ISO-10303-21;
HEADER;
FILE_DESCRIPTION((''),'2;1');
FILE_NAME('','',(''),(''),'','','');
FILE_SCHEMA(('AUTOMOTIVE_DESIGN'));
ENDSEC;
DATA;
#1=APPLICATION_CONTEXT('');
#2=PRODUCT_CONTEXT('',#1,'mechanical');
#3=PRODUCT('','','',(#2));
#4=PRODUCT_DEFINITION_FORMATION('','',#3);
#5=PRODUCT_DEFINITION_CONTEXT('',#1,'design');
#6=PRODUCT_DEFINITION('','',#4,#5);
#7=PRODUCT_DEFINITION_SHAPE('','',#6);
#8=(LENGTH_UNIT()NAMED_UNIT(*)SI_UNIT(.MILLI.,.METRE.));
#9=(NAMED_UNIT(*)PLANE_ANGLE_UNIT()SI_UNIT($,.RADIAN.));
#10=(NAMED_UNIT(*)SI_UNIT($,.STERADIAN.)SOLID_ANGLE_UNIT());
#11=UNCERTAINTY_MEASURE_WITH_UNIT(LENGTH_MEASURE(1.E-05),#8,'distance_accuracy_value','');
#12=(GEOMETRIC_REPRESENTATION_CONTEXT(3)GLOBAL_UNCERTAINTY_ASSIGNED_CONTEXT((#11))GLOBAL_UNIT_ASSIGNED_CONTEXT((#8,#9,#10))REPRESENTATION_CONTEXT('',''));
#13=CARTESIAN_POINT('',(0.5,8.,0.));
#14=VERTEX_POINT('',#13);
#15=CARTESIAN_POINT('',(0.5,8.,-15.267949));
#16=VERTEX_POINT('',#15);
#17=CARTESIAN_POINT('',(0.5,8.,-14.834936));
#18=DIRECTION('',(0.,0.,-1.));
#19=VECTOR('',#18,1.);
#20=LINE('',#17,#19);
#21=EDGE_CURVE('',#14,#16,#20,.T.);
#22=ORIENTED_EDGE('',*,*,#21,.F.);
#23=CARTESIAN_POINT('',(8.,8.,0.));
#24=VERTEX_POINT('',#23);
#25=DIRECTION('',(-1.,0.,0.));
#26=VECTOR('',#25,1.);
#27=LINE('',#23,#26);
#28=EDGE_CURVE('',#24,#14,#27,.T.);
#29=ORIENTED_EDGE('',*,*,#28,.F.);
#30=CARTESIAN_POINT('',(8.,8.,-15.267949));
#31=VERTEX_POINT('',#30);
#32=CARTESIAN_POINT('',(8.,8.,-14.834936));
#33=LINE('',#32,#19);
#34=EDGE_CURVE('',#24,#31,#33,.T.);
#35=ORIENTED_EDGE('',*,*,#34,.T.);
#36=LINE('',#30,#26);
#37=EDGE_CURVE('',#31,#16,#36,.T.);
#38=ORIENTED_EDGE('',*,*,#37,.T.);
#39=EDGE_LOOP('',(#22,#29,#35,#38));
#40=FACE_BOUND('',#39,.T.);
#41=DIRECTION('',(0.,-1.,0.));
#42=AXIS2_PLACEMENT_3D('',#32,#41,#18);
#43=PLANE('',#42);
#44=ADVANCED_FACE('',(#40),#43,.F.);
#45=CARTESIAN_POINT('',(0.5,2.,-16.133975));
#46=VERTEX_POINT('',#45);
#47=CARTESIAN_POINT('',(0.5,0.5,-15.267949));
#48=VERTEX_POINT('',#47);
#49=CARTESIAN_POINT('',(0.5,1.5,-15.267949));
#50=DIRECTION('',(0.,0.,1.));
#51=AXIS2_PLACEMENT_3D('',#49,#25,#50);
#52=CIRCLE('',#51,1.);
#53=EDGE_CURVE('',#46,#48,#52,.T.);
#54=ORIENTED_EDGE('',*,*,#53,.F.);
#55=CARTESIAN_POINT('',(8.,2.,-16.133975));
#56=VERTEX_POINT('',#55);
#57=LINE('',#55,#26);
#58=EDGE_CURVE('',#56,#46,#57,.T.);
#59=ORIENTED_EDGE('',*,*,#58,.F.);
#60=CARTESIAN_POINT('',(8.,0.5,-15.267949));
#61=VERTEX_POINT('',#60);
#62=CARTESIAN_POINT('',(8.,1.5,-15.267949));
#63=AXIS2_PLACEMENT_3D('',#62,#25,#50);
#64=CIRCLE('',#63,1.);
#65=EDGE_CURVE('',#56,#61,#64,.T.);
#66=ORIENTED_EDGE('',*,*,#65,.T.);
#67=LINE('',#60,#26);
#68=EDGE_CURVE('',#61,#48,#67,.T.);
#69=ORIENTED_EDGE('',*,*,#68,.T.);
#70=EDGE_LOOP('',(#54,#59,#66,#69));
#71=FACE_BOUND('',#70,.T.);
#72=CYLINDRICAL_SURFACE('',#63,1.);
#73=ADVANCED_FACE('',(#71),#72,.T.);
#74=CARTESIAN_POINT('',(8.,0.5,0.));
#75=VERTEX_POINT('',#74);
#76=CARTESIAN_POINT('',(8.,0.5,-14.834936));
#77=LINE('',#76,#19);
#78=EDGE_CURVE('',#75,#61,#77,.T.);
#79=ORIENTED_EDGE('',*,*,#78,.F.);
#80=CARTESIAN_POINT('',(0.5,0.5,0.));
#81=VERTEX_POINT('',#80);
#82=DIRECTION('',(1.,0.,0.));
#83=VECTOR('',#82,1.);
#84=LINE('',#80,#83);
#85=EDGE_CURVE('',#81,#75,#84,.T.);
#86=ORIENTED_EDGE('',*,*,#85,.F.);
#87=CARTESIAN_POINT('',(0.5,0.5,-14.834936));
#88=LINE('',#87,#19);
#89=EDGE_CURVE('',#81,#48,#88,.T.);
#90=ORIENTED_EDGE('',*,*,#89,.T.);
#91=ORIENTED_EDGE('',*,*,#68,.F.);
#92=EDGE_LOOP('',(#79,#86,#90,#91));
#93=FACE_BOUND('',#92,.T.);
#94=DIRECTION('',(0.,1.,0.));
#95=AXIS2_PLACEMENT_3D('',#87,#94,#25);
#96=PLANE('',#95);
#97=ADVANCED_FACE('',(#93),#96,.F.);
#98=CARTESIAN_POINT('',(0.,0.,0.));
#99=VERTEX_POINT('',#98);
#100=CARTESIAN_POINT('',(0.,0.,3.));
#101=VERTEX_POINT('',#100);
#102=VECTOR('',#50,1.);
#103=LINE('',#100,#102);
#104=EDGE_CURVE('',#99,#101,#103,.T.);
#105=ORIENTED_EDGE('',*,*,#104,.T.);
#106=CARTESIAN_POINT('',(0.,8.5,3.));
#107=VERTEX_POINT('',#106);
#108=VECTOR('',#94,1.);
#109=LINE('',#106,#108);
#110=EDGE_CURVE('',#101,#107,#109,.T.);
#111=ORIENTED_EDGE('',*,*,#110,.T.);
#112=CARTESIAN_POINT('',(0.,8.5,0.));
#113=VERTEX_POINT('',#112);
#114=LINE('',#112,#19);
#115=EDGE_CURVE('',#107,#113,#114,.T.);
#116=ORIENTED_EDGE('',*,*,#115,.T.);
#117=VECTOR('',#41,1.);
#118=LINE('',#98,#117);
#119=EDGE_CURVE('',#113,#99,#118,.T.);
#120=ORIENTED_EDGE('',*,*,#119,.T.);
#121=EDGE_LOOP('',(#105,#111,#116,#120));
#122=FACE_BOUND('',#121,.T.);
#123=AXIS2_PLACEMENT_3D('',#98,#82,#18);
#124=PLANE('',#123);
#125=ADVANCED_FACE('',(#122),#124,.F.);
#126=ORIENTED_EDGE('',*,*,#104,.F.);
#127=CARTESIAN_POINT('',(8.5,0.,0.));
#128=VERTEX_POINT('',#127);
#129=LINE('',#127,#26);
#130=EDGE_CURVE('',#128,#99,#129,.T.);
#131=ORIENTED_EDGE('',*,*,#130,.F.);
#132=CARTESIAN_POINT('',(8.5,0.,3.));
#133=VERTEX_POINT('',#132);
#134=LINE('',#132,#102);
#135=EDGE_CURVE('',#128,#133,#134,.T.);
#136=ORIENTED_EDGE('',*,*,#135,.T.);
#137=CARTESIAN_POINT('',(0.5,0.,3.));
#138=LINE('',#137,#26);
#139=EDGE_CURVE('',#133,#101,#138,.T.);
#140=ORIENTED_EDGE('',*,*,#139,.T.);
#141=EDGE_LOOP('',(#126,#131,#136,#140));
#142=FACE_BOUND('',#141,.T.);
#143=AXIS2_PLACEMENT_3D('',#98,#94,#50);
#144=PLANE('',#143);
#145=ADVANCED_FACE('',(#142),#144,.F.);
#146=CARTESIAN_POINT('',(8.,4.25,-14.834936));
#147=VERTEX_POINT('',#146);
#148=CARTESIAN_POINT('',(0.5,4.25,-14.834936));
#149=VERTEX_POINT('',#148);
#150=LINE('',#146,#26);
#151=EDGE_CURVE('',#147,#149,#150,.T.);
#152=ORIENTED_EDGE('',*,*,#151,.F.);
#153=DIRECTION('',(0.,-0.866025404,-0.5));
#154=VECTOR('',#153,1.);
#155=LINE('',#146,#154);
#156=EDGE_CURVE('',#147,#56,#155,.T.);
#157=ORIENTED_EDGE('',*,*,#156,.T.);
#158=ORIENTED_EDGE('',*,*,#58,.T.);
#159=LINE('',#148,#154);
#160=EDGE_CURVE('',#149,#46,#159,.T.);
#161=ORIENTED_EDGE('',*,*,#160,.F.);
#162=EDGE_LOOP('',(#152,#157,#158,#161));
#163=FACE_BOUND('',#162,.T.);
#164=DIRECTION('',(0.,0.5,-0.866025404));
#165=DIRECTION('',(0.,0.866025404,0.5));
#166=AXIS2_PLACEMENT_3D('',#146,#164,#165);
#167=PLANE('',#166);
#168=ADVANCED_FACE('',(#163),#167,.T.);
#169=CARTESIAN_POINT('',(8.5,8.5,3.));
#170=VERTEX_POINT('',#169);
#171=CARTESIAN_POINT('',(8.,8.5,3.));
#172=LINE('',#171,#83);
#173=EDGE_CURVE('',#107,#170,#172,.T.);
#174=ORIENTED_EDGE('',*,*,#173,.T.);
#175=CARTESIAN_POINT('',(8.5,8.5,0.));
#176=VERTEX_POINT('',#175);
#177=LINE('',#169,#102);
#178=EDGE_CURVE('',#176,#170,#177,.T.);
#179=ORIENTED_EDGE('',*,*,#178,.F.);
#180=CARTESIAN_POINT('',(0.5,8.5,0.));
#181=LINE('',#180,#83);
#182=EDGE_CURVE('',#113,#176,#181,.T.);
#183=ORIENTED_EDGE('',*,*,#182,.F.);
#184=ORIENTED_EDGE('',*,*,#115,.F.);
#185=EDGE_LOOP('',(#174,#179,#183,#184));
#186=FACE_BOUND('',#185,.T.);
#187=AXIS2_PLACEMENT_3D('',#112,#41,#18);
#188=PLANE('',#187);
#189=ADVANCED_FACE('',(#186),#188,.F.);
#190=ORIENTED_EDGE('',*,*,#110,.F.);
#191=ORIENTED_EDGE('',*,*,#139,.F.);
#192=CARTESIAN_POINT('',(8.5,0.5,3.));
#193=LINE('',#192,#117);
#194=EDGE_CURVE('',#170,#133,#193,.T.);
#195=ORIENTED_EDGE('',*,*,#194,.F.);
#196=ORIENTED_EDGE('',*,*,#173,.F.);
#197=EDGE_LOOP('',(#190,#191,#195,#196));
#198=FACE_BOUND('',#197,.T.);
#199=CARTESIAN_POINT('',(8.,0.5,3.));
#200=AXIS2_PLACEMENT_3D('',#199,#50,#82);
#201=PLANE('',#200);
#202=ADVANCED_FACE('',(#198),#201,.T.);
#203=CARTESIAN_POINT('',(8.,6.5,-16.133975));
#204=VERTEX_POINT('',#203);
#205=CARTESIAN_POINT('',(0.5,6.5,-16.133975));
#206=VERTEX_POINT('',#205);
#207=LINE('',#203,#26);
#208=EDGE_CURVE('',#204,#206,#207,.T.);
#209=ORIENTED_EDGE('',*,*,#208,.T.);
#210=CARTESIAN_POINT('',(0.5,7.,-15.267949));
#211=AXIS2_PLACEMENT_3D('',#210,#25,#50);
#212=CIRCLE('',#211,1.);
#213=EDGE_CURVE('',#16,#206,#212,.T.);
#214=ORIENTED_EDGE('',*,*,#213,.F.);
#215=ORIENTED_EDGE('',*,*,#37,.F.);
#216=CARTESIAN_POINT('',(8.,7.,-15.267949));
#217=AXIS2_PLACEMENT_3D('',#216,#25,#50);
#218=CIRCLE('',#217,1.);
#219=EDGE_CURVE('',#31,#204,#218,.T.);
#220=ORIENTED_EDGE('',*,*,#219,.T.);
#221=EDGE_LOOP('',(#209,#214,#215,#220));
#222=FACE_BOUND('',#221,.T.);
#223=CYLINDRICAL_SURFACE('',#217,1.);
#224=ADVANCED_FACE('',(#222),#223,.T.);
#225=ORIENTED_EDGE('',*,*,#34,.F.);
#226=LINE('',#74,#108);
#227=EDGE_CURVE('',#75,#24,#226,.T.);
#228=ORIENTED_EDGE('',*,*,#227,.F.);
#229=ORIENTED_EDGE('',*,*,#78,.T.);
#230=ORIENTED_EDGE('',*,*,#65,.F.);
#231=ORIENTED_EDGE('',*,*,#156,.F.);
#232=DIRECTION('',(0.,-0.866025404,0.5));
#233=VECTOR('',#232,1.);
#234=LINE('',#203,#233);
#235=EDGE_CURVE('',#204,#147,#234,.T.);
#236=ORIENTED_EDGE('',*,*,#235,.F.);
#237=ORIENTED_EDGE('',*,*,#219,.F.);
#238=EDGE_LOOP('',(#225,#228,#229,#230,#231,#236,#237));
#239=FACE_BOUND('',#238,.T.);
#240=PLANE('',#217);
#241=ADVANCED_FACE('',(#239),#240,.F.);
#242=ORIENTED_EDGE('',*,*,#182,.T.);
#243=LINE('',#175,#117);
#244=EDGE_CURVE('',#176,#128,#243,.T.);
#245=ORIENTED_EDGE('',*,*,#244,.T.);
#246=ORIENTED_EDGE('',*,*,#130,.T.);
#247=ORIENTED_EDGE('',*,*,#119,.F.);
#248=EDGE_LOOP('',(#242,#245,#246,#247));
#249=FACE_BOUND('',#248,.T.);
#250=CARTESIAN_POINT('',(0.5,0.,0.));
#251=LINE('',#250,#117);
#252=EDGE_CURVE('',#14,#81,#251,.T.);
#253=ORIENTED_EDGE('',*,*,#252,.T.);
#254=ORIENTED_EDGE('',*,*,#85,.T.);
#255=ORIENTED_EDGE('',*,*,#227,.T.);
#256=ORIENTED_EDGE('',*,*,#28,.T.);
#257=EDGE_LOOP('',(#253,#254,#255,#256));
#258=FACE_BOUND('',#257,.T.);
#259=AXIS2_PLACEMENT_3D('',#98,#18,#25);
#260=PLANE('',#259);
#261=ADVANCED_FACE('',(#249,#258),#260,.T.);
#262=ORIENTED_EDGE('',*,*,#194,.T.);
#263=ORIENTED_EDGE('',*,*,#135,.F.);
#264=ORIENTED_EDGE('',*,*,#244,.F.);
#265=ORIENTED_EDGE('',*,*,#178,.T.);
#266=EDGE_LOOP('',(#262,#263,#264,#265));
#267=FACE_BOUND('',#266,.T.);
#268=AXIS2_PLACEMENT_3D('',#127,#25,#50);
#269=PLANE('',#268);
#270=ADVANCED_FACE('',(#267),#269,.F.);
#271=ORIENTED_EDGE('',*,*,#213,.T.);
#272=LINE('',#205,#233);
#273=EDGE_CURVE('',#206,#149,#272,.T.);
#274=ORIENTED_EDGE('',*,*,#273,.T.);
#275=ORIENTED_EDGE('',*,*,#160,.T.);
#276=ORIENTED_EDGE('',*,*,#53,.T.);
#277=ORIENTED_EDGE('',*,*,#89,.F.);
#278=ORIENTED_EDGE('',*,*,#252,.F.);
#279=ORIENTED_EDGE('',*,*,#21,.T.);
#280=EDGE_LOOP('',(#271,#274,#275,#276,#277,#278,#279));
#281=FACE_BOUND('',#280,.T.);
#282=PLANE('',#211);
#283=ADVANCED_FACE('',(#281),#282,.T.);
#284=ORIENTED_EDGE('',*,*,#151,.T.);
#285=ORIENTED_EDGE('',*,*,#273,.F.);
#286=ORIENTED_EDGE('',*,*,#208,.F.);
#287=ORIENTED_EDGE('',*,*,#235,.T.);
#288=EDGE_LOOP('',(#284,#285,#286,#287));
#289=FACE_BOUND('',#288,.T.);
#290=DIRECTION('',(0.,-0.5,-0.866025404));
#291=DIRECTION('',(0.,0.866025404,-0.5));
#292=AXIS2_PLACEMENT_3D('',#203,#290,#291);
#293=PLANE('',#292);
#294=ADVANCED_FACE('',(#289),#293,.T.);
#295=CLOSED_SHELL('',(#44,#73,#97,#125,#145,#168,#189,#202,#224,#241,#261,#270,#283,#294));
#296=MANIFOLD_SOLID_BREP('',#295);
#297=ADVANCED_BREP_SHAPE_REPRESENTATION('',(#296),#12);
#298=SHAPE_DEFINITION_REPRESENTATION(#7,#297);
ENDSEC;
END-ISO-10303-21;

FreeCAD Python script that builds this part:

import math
import FreeCAD as App
import Part
import Sketcher

V = App.Vector
Q = App.Units.Quantity


def add_polygon(sketch, points):
    """Adds a closed chain of lines whose ends are joined by coincident constraints."""
    first, n = sketch.GeometryCount, len(points)
    for a, b in zip(points, points[1:] + points[:1]):
        sketch.addGeometry(Part.LineSegment(App.Vector(*a, 0), App.Vector(*b, 0)), False)
    for i in range(n):
        sketch.addConstraint(Sketcher.Constraint("Coincident", first + i, 2, first + (i + 1) % n, 1))

doc = App.newDocument("Part")
params = doc.addObject("Spreadsheet::Sheet", "Params")
for row, (alias, value) in enumerate([
    ("sketch1_radius", "1 mm"),
    ("sketch1_width", "7.5 mm"),
    ("pad1_length", "7.5 mm"),
    ("sketch2_width", "7.5 mm"),
    ("pad2_length", "0.5 mm"),
    ("sketch3_width", "8 mm"),
    ("pad3_length", "0.5 mm"),
    ("sketch4_width", "8 mm"),
    ("pad4_length", "0.5 mm"),
    ("sketch5_width", "8 mm"),
    ("sketch5_width2", "7.5 mm"),
    ("sketch5_height", "0.5 mm"),
    ("pocket1_length", "0.433013 mm"),
    ("sketch6_width", "8 mm"),
    ("sketch6_width2", "7.5 mm"),
    ("sketch6_height", "0.5 mm"),
    ("pocket2_length", "14.834936 mm"),
    ("sketch7_height", "3 mm"),
    ("sketch7_width", "8.5 mm"),
    ("pad5_length", "0.5 mm"),
], start=1):
    params.set(f"A{row}", alias)
    params.set(f"B{row}", "=" + value)
    params.setAlias(f"B{row}", alias)

body = doc.addObject("PartDesign::Body", "Body")

# Sketch on YZ plane
sketch1 = doc.addObject("Sketcher::SketchObject", "Sketch")
body.addObject(sketch1)
sketch1.AttachmentSupport = (doc.YZ_Plane, [""])
sketch1.MapMode = "FlatFace"
sketch1.AttachmentOffset = App.Placement(V(0, 0, 0.5), App.Rotation())
sketch1.addGeometry([
    Part.LineSegment(V(0.5, 3, 0), V(8, 3, 0)),  # 0
    Part.LineSegment(V(8, 3, 0), V(8, -15.3, 0)),  # 1
    Part.ArcOfCircle(Part.Circle(V(7, -15.3, 0), V(0, 0, 1), 1), math.radians(-120), math.radians(0)),  # 2
    Part.LineSegment(V(6.5, -16.1, 0), V(4.2, -14.8, 0)),  # 3
    Part.LineSegment(V(4.2, -14.8, 0), V(2, -16.1, 0)),  # 4
    Part.ArcOfCircle(Part.Circle(V(1.5, -15.3, 0), V(0, 0, 1), 1), math.radians(180), math.radians(300)),  # 5
    Part.LineSegment(V(0.5, -15.3, 0), V(0.5, 3, 0)),  # 6
], False)
sketch1.addConstraint([
    Sketcher.Constraint("Coincident", 0, 2, 1, 1),
    Sketcher.Constraint("Tangent", 1, 2, 2, 2),
    Sketcher.Constraint("Tangent", 2, 1, 3, 1),
    Sketcher.Constraint("Coincident", 3, 2, 4, 1),
    Sketcher.Constraint("Tangent", 4, 2, 5, 2),
    Sketcher.Constraint("Tangent", 5, 1, 6, 1),
    Sketcher.Constraint("Coincident", 6, 2, 0, 1),
    Sketcher.Constraint("Horizontal", 0),
    Sketcher.Constraint("Vertical", 1),
    Sketcher.Constraint("Vertical", 6),
    Sketcher.Constraint("Equal", 2, 5),
    Sketcher.Constraint("Horizontal", 2, 3, 5, 3),
    Sketcher.Constraint("Horizontal", 2, 1, 4, 2),
    Sketcher.Constraint("Radius", 2, 1.0),
    Sketcher.Constraint("Angle", 3, Q("150 deg")),
    Sketcher.Constraint("DistanceX", 0, 1, 0, 2, 7.5),
    Sketcher.Constraint("DistanceX", -1, 1, 2, 3, 7.0),
    Sketcher.Constraint("DistanceY", -1, 1, 0, 2, 3.0),
    Sketcher.Constraint("DistanceY", 1, 2, 1, 1, 18.267949),
])
sketch1.setExpression("Constraints[13]", "Params.sketch1_radius")
sketch1.setExpression("Constraints[15]", "Params.sketch1_width")
pad1 = doc.addObject("PartDesign::Pad", "Pad")
body.addObject(pad1)
pad1.Profile = sketch1
pad1.setExpression("Length", "Params.pad1_length")

# Sketch on XZ plane
sketch2 = doc.addObject("Sketcher::SketchObject", "Sketch001")
body.addObject(sketch2)
sketch2.AttachmentSupport = (doc.XZ_Plane, [""])
sketch2.MapMode = "FlatFace"
sketch2.AttachmentOffset = App.Placement(V(0, 0, -8), App.Rotation())
add_polygon(sketch2, [(8, 3), (8, -15), (0, -15), (0, 3)])  # lines 0-3
sketch2.addConstraint([
    Sketcher.Constraint("Vertical", 0),
    Sketcher.Constraint("Horizontal", 1),
    Sketcher.Constraint("Vertical", 2),
    Sketcher.Constraint("Horizontal", 3),
    Sketcher.Constraint("DistanceX", 1, 2, 1, 1, 7.5),
    Sketcher.Constraint("DistanceX", -1, 1, 0, 2, 8.0),
    Sketcher.Constraint("DistanceY", -1, 1, 2, 2, 3.0),
    Sketcher.Constraint("DistanceY", 0, 2, 0, 1, 18.267949),
])
sketch2.setExpression("Constraints[8]", "Params.sketch2_width")
pad2 = doc.addObject("PartDesign::Pad", "Pad001")
body.addObject(pad2)
pad2.Profile = sketch2
pad2.setExpression("Length", "Params.pad2_length")
pad2.Reversed = True

# Sketch on YZ plane
sketch3 = doc.addObject("Sketcher::SketchObject", "Sketch002")
body.addObject(sketch3)
sketch3.AttachmentSupport = (doc.YZ_Plane, [""])
sketch3.MapMode = "FlatFace"
sketch3.AttachmentOffset = App.Placement(V(0, 0, 8), App.Rotation())
add_polygon(sketch3, [(8, 3), (0, 3), (0, -15), (8, -15)])  # lines 0-3
sketch3.addConstraint([
    Sketcher.Constraint("Horizontal", 0),
    Sketcher.Constraint("Vertical", 1),
    Sketcher.Constraint("Horizontal", 2),
    Sketcher.Constraint("Vertical", 3),
    Sketcher.Constraint("DistanceX", 0, 2, 0, 1, 8.0),
    Sketcher.Constraint("DistanceY", -1, 1, 0, 2, 3.0),
    Sketcher.Constraint("DistanceX", -1, 1, 0, 2, 0.5),
    Sketcher.Constraint("DistanceY", 1, 2, 1, 1, 18.267949),
])
sketch3.setExpression("Constraints[8]", "Params.sketch3_width")
pad3 = doc.addObject("PartDesign::Pad", "Pad002")
body.addObject(pad3)
pad3.Profile = sketch3
pad3.setExpression("Length", "Params.pad3_length")

# Sketch on XZ plane
sketch4 = doc.addObject("Sketcher::SketchObject", "Sketch003")
body.addObject(sketch4)
sketch4.AttachmentSupport = (doc.XZ_Plane, [""])
sketch4.MapMode = "FlatFace"
sketch4.AttachmentOffset = App.Placement(V(0, 0, -0.5), App.Rotation())
add_polygon(sketch4, [(0, 3), (0, -15), (8, -15), (8, 3)])  # lines 0-3
sketch4.addConstraint([
    Sketcher.Constraint("Vertical", 0),
    Sketcher.Constraint("Horizontal", 1),
    Sketcher.Constraint("Vertical", 2),
    Sketcher.Constraint("Horizontal", 3),
    Sketcher.Constraint("DistanceX", 1, 1, 1, 2, 8.0),
    Sketcher.Constraint("DistanceY", -1, 1, 2, 2, 3.0),
    Sketcher.Constraint("DistanceX", -1, 1, 0, 2, 0.5),
    Sketcher.Constraint("DistanceY", 0, 2, 0, 1, 18.267949),
])
sketch4.setExpression("Constraints[8]", "Params.sketch4_width")
pad4 = doc.addObject("PartDesign::Pad", "Pad003")
body.addObject(pad4)
pad4.Profile = sketch4
pad4.setExpression("Length", "Params.pad4_length")

# Sketch on XY plane
sketch5 = doc.addObject("Sketcher::SketchObject", "Sketch004")
body.addObject(sketch5)
sketch5.AttachmentSupport = (doc.XY_Plane, [""])
sketch5.MapMode = "FlatFace"
sketch5.AttachmentOffset = App.Placement(V(0, 0, -15.267949), App.Rotation())
add_polygon(sketch5, [(0.5, 8), (0.5, 8.5), (8.5, 8.5), (8.5, 0), (0.5, 0), (0.5, 0.5), (8, 0.5), (8, 8)])  # lines 0-7
sketch5.addConstraint([
    Sketcher.Constraint("Vertical", 0),
    Sketcher.Constraint("Horizontal", 1),
    Sketcher.Constraint("Vertical", 2),
    Sketcher.Constraint("Horizontal", 3),
    Sketcher.Constraint("Vertical", 4),
    Sketcher.Constraint("Horizontal", 5),
    Sketcher.Constraint("Vertical", 6),
    Sketcher.Constraint("Horizontal", 7),
    Sketcher.Constraint("PointOnObject", 2, 2, -1),
    Sketcher.Constraint("Vertical", 0, 2, 3, 2),
    Sketcher.Constraint("Equal", 0, 4),
    Sketcher.Constraint("Equal", 7, 6),
    Sketcher.Constraint("DistanceX", 1, 1, 1, 2, 8.0),
    Sketcher.Constraint("DistanceX", 5, 1, 5, 2, 7.5),
    Sketcher.Constraint("DistanceY", 0, 1, 0, 2, 0.5),
    Sketcher.Constraint("DistanceX", -1, 1, 5, 2, 8.0),
])
sketch5.setExpression("Constraints[20]", "Params.sketch5_width")
sketch5.setExpression("Constraints[21]", "Params.sketch5_width2")
sketch5.setExpression("Constraints[22]", "Params.sketch5_height")
pocket1 = doc.addObject("PartDesign::Pocket", "Pocket")
body.addObject(pocket1)
pocket1.Profile = sketch5
pocket1.setExpression("Length", "Params.pocket1_length")
pocket1.Reversed = True

# Sketch on XY plane
sketch6 = doc.addObject("Sketcher::SketchObject", "Sketch005")
body.addObject(sketch6)
sketch6.AttachmentSupport = (doc.XY_Plane, [""])
sketch6.MapMode = "FlatFace"
sketch6.AttachmentOffset = App.Placement(V(0, 0, -14.834936), App.Rotation())
add_polygon(sketch6, [(0.5, 8), (0.5, 8.5), (8.5, 8.5), (8.5, 0), (0.5, 0), (0.5, 0.5), (8, 0.5), (8, 8)])  # lines 0-7
sketch6.addConstraint([
    Sketcher.Constraint("Vertical", 0),
    Sketcher.Constraint("Horizontal", 1),
    Sketcher.Constraint("Vertical", 2),
    Sketcher.Constraint("Horizontal", 3),
    Sketcher.Constraint("Vertical", 4),
    Sketcher.Constraint("Horizontal", 5),
    Sketcher.Constraint("Vertical", 6),
    Sketcher.Constraint("Horizontal", 7),
    Sketcher.Constraint("PointOnObject", 2, 2, -1),
    Sketcher.Constraint("Vertical", 0, 2, 3, 2),
    Sketcher.Constraint("Equal", 0, 4),
    Sketcher.Constraint("Equal", 7, 6),
    Sketcher.Constraint("DistanceX", 1, 1, 1, 2, 8.0),
    Sketcher.Constraint("DistanceX", 5, 1, 5, 2, 7.5),
    Sketcher.Constraint("DistanceY", 0, 1, 0, 2, 0.5),
    Sketcher.Constraint("DistanceX", -1, 1, 5, 2, 8.0),
])
sketch6.setExpression("Constraints[20]", "Params.sketch6_width")
sketch6.setExpression("Constraints[21]", "Params.sketch6_width2")
sketch6.setExpression("Constraints[22]", "Params.sketch6_height")
pocket2 = doc.addObject("PartDesign::Pocket", "Pocket001")
body.addObject(pocket2)
pocket2.Profile = sketch6
pocket2.setExpression("Length", "Params.pocket2_length")
pocket2.Reversed = True

# Sketch on YZ plane
sketch7 = doc.addObject("Sketcher::SketchObject", "Sketch006")
body.addObject(sketch7)
sketch7.AttachmentSupport = (doc.YZ_Plane, [""])
sketch7.MapMode = "FlatFace"
sketch7.AttachmentOffset = App.Placement(V(0, 0, 0.5), App.Rotation())
add_polygon(sketch7, [(8.5, 0), (0, 0), (0, 3), (8.5, 3)])  # lines 0-3
sketch7.addConstraint([
    Sketcher.Constraint("Horizontal", 0),
    Sketcher.Constraint("Vertical", 1),
    Sketcher.Constraint("Horizontal", 2),
    Sketcher.Constraint("Vertical", 3),
    Sketcher.Constraint("Coincident", 0, 2, -1, 1),
    Sketcher.Constraint("DistanceY", 1, 1, 1, 2, 3.0),
    Sketcher.Constraint("DistanceX", 0, 2, 0, 1, 8.5),
])
sketch7.setExpression("Constraints[9]", "Params.sketch7_height")
sketch7.setExpression("Constraints[10]", "Params.sketch7_width")
pad5 = doc.addObject("PartDesign::Pad", "Pad004")
body.addObject(pad5)
pad5.Profile = sketch7
pad5.setExpression("Length", "Params.pad5_length")
pad5.Reversed = True

doc.recompute()
